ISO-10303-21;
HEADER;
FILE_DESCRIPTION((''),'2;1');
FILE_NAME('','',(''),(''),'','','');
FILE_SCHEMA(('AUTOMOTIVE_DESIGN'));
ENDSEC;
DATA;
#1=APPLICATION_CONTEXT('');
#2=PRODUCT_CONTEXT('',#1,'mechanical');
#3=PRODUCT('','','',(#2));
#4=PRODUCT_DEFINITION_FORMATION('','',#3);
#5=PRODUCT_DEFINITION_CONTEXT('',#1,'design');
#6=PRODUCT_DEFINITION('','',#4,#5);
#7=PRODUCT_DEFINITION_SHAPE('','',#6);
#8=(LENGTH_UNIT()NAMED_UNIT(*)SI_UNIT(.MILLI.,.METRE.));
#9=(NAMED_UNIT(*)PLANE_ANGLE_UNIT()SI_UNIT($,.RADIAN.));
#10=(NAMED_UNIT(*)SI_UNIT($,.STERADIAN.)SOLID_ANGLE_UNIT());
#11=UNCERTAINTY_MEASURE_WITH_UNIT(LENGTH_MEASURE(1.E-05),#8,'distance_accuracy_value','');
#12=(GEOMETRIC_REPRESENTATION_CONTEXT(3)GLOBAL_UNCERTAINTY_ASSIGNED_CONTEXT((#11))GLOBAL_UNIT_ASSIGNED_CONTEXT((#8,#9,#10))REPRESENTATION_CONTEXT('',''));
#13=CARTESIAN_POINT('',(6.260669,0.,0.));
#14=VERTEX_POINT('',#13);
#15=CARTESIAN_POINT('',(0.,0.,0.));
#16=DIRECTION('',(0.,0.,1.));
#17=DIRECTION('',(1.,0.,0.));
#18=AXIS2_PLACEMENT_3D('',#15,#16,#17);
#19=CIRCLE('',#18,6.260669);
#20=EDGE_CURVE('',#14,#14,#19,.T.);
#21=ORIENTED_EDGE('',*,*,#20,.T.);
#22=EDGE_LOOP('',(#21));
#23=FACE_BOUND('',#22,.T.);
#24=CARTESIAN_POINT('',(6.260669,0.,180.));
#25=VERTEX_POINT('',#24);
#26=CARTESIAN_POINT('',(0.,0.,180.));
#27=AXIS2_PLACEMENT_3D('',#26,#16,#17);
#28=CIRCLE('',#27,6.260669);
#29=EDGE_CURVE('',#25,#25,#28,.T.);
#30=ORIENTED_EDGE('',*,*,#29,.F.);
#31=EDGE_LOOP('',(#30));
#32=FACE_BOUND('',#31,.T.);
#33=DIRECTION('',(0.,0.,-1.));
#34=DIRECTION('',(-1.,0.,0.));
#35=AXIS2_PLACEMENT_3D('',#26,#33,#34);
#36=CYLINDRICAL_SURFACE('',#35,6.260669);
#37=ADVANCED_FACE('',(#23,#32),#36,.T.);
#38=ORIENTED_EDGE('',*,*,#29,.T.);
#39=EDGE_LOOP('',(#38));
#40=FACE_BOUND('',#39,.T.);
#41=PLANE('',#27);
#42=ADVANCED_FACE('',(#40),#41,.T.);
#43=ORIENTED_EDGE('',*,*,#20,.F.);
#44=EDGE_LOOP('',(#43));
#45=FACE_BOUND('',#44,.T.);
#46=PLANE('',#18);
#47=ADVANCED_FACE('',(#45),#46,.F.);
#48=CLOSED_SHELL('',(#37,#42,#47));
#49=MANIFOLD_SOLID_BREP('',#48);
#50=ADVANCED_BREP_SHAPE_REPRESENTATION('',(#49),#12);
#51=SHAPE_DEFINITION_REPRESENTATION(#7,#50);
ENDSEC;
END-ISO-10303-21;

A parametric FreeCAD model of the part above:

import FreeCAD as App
import Part
import Sketcher

V = App.Vector

doc = App.newDocument("Part")
body = doc.addObject("PartDesign::Body", "Body")

sketch1 = doc.addObject("Sketcher::SketchObject", "Sketch")
body.addObject(sketch1)
sketch1.AttachmentSupport = (doc.XY_Plane, [""])
sketch1.MapMode = "FlatFace"
sketch1.addGeometry(Part.Circle(V(0, 0, 0), V(0, 0, 1), 6.260669), False)
sketch1.addConstraint([
    Sketcher.Constraint("Coincident", 0, 3, -1, 1),
    Sketcher.Constraint("Diameter", 0, 12.521337),
])
pad1 = doc.addObject("PartDesign::Pad", "Pad")
body.addObject(pad1)
pad1.Profile = sketch1
pad1.Length = 180

doc.recompute()
